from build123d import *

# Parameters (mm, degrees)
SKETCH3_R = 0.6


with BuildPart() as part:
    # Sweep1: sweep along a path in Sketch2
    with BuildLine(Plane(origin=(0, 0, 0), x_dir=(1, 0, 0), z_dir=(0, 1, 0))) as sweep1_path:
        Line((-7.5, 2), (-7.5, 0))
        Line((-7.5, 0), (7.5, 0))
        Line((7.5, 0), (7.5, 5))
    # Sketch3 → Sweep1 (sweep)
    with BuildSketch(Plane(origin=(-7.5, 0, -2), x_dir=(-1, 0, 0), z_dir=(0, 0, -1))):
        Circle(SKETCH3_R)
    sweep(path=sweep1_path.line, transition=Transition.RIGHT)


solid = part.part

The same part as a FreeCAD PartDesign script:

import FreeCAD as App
import Part
import Sketcher

V = App.Vector

doc = App.newDocument("Part")
body = doc.addObject("PartDesign::Body", "Body")

sketch1 = body.newObject("Sketcher::SketchObject", "Sketch")
sketch1.AttachmentSupport = (doc.getObject("XY_Plane"), [""])
sketch1.MapMode = "FlatFace"
sketch1.AttachmentOffset = App.Placement(V(0, 0, -2), App.Rotation())
sketch1.addGeometry(Part.Circle(V(-7.5, 0, 0), V(0, 0, 1), 0.6), False)
sketch1.addConstraint(Sketcher.Constraint("PointOnObject", 0, 3, -1))
sketch1.addConstraint(Sketcher.Constraint("Diameter", 0, 1.2))
sketch1.addConstraint(Sketcher.Constraint("DistanceX", 0, 3, -1, 1, 7.5))

sketch2 = body.newObject("Sketcher::SketchObject", "Sketch001")
sketch2.AttachmentSupport = (doc.getObject("XZ_Plane"), [""])
sketch2.MapMode = "FlatFace"
sketch2.addGeometry(Part.LineSegment(V(-7.5, -2, 0), V(-7.5, 0, 0)), False)
sketch2.addGeometry(Part.LineSegment(V(-7.5, 0, 0), V(7.5, 0, 0)), False)
sketch2.addGeometry(Part.LineSegment(V(7.5, 0, 0), V(7.5, -5, 0)), False)
sketch2.addConstraint(Sketcher.Constraint("Coincident", 0, 2, 1, 1))
sketch2.addConstraint(Sketcher.Constraint("Coincident", 1, 2, 2, 1))
sketch2.addConstraint(Sketcher.Constraint("Vertical", 0))
sketch2.addConstraint(Sketcher.Constraint("Horizontal", 1))
sketch2.addConstraint(Sketcher.Constraint("Vertical", 2))
sketch2.addConstraint(Sketcher.Constraint("Symmetric", 0, 2, 1, 2, -1, 1))
sketch2.addConstraint(Sketcher.Constraint("DistanceX", 1, 1, 1, 2, 15.0))
sketch2.addConstraint(Sketcher.Constraint("DistanceY", 0, 1, 0, 2, 2.0))
sketch2.addConstraint(Sketcher.Constraint("DistanceY", 2, 2, 2, 1, 5.0))
doc.recompute()

additivepipe = body.newObject("PartDesign::AdditivePipe", "AdditivePipe")
additivepipe.Profile = sketch1
additivepipe.Spine = (sketch2, ["Edge1", "Edge2", "Edge3"])
additivepipe.Transition = "Right corner"

doc.recompute()
